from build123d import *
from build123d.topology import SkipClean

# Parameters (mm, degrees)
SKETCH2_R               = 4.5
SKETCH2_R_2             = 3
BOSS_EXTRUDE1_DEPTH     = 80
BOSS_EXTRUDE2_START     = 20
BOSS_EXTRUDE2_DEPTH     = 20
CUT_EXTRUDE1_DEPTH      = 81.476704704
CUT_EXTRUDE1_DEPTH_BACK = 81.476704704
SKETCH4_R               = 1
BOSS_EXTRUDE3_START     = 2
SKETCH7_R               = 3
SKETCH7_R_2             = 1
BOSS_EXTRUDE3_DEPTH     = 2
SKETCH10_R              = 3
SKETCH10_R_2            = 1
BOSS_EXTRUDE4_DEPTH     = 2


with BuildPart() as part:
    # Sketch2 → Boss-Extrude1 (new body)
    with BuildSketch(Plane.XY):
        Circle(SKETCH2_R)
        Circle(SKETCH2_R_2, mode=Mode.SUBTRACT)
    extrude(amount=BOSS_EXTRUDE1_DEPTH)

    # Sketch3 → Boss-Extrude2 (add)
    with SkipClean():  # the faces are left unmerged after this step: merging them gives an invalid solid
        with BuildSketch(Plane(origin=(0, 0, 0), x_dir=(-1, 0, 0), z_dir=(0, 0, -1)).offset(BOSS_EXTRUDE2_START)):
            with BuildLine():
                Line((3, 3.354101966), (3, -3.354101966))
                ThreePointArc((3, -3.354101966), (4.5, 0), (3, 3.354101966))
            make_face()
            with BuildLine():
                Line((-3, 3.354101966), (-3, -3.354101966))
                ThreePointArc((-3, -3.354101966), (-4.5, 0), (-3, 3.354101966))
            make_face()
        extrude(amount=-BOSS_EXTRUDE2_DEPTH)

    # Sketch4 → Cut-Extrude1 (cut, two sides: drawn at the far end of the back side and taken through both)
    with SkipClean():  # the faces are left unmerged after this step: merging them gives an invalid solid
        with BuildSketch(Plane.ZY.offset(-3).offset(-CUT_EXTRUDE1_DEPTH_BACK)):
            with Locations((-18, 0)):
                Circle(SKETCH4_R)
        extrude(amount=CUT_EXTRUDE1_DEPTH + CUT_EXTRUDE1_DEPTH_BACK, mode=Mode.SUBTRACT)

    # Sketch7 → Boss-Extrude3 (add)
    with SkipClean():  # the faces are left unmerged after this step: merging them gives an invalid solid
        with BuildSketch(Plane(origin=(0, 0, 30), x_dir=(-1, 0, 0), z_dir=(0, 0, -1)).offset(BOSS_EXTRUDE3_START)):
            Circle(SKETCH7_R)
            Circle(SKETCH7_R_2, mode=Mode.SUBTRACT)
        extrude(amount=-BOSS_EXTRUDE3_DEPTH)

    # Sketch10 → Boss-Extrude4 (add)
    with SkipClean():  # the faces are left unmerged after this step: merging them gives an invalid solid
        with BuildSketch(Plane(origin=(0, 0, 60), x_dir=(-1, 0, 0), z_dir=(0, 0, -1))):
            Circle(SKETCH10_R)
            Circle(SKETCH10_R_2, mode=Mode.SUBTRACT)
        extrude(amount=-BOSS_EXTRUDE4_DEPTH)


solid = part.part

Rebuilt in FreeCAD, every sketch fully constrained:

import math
import FreeCAD as App
import Part
import Sketcher
Q = App.Units.Quantity

doc = App.newDocument("Part")
body = doc.addObject("PartDesign::Body", "Body")

# Sketch on XY plane
sketch1 = doc.addObject("Sketcher::SketchObject", "Sketch")
body.addObject(sketch1)
sketch1.AttachmentSupport = (doc.XY_Plane, [""])
sketch1.MapMode = "FlatFace"
sketch1.addGeometry([
    Part.Circle(App.Vector(0, 0, 0), App.Vector(0, 0, 1), 4.5),
    Part.Circle(App.Vector(0, 0, 0), App.Vector(0, 0, 1), 3),
], False)
sketch1.addConstraint([
    Sketcher.Constraint("Coincident", 0, 3, -1, 1),
    Sketcher.Constraint("Coincident", 1, 3, -1, 1),
    Sketcher.Constraint("Diameter", 0, Q("9 mm")),
    Sketcher.Constraint("Diameter", 1, Q("6 mm")),
])
pad1 = doc.addObject("PartDesign::Pad", "Pad")
body.addObject(pad1)
pad1.Profile = sketch1
pad1.Length = 80

# Sketch on XY plane
sketch2 = doc.addObject("Sketcher::SketchObject", "Sketch001")
body.addObject(sketch2)
sketch2.AttachmentSupport = (doc.XY_Plane, [""])
sketch2.MapMode = "FlatFace"
sketch2.AttachmentOffset = App.Placement(App.Vector(0, 0, -20), App.Rotation())
sketch2.addGeometry([
    Part.LineSegment(App.Vector(-3, 3.354102, 0), App.Vector(-3, -3.354102, 0)),
    Part.ArcOfCircle(Part.Circle(App.Vector(0, 0, 0), App.Vector(0, 0, 1), 4.5), math.radians(131.810315), math.radians(228.189685)),
    Part.LineSegment(App.Vector(3, -3.354102, 0), App.Vector(3, 3.354102, 0)),
    Part.ArcOfCircle(Part.Circle(App.Vector(0, 0, 0), App.Vector(0, 0, 1), 4.5), math.radians(-48.189685), math.radians(48.189685)),
], False)
sketch2.addConstraint([
    Sketcher.Constraint("Coincident", 0, 1, 1, 1),
    Sketcher.Constraint("Coincident", 1, 2, 0, 2),
    Sketcher.Constraint("Coincident", 2, 1, 3, 1),
    Sketcher.Constraint("Coincident", 3, 2, 2, 2),
    Sketcher.Constraint("Vertical", 0),
    Sketcher.Constraint("Vertical", 2),
    Sketcher.Constraint("Coincident", 1, 3, -1, 1),
    Sketcher.Constraint("Coincident", 3, 3, -1, 1),
    Sketcher.Constraint("Equal", 1, 3),
    Sketcher.Constraint("Horizontal", 1, 2, 2, 1),
    Sketcher.Constraint("Radius", 1, Q("4.5 mm")),
    Sketcher.Constraint("DistanceX", 0, 1, -1, 1, Q("3 mm")),
])
pad2 = doc.addObject("PartDesign::Pad", "Pad001")
body.addObject(pad2)
pad2.Profile = sketch2
pad2.Length = 20

# Sketch on YZ plane
sketch3 = doc.addObject("Sketcher::SketchObject", "Sketch002")
body.addObject(sketch3)
sketch3.AttachmentSupport = (doc.YZ_Plane, [""])
sketch3.MapMode = "FlatFace"
sketch3.AttachmentOffset = App.Placement(App.Vector(0, 0, 3), App.Rotation())
sketch3.addGeometry(Part.Circle(App.Vector(0, -18, 0), App.Vector(0, 0, 1), 1), False)
sketch3.addConstraint([
    Sketcher.Constraint("PointOnObject", 0, 3, -2),
    Sketcher.Constraint("Diameter", 0, Q("2 mm")),
    Sketcher.Constraint("DistanceY", 0, 3, -1, 1, Q("18 mm")),
])
pocket1 = doc.addObject("PartDesign::Pocket", "Pocket")
body.addObject(pocket1)
pocket1.Profile = sketch3
pocket1.Type = "ThroughAll"
pocket1.Midplane = True

# Sketch on XY plane
sketch4 = doc.addObject("Sketcher::SketchObject", "Sketch003")
body.addObject(sketch4)
sketch4.AttachmentSupport = (doc.XY_Plane, [""])
sketch4.MapMode = "FlatFace"
sketch4.AttachmentOffset = App.Placement(App.Vector(0, 0, 28), App.Rotation())
sketch4.addGeometry([
    Part.Circle(App.Vector(0, 0, 0), App.Vector(0, 0, 1), 3),
    Part.Circle(App.Vector(0, 0, 0), App.Vector(0, 0, 1), 1),
], False)
sketch4.addConstraint([
    Sketcher.Constraint("Coincident", 0, 3, -1, 1),
    Sketcher.Constraint("Coincident", 1, 3, -1, 1),
    Sketcher.Constraint("Diameter", 0, Q("6 mm")),
    Sketcher.Constraint("Diameter", 1, Q("2 mm")),
])
pad3 = doc.addObject("PartDesign::Pad", "Pad002")
body.addObject(pad3)
pad3.Profile = sketch4
pad3.Length = 2

# Sketch on XY plane
sketch5 = doc.addObject("Sketcher::SketchObject", "Sketch004")
body.addObject(sketch5)
sketch5.AttachmentSupport = (doc.XY_Plane, [""])
sketch5.MapMode = "FlatFace"
sketch5.AttachmentOffset = App.Placement(App.Vector(0, 0, 60), App.Rotation())
sketch5.addGeometry([
    Part.Circle(App.Vector(0, 0, 0), App.Vector(0, 0, 1), 3),
    Part.Circle(App.Vector(0, 0, 0), App.Vector(0, 0, 1), 1),
], False)
sketch5.addConstraint([
    Sketcher.Constraint("Coincident", 0, 3, -1, 1),
    Sketcher.Constraint("Coincident", 1, 3, -1, 1),
    Sketcher.Constraint("Diameter", 0, Q("6 mm")),
    Sketcher.Constraint("Diameter", 1, Q("2 mm")),
])
pad4 = doc.addObject("PartDesign::Pad", "Pad003")
body.addObject(pad4)
pad4.Profile = sketch5
pad4.Length = 2

doc.recompute()
